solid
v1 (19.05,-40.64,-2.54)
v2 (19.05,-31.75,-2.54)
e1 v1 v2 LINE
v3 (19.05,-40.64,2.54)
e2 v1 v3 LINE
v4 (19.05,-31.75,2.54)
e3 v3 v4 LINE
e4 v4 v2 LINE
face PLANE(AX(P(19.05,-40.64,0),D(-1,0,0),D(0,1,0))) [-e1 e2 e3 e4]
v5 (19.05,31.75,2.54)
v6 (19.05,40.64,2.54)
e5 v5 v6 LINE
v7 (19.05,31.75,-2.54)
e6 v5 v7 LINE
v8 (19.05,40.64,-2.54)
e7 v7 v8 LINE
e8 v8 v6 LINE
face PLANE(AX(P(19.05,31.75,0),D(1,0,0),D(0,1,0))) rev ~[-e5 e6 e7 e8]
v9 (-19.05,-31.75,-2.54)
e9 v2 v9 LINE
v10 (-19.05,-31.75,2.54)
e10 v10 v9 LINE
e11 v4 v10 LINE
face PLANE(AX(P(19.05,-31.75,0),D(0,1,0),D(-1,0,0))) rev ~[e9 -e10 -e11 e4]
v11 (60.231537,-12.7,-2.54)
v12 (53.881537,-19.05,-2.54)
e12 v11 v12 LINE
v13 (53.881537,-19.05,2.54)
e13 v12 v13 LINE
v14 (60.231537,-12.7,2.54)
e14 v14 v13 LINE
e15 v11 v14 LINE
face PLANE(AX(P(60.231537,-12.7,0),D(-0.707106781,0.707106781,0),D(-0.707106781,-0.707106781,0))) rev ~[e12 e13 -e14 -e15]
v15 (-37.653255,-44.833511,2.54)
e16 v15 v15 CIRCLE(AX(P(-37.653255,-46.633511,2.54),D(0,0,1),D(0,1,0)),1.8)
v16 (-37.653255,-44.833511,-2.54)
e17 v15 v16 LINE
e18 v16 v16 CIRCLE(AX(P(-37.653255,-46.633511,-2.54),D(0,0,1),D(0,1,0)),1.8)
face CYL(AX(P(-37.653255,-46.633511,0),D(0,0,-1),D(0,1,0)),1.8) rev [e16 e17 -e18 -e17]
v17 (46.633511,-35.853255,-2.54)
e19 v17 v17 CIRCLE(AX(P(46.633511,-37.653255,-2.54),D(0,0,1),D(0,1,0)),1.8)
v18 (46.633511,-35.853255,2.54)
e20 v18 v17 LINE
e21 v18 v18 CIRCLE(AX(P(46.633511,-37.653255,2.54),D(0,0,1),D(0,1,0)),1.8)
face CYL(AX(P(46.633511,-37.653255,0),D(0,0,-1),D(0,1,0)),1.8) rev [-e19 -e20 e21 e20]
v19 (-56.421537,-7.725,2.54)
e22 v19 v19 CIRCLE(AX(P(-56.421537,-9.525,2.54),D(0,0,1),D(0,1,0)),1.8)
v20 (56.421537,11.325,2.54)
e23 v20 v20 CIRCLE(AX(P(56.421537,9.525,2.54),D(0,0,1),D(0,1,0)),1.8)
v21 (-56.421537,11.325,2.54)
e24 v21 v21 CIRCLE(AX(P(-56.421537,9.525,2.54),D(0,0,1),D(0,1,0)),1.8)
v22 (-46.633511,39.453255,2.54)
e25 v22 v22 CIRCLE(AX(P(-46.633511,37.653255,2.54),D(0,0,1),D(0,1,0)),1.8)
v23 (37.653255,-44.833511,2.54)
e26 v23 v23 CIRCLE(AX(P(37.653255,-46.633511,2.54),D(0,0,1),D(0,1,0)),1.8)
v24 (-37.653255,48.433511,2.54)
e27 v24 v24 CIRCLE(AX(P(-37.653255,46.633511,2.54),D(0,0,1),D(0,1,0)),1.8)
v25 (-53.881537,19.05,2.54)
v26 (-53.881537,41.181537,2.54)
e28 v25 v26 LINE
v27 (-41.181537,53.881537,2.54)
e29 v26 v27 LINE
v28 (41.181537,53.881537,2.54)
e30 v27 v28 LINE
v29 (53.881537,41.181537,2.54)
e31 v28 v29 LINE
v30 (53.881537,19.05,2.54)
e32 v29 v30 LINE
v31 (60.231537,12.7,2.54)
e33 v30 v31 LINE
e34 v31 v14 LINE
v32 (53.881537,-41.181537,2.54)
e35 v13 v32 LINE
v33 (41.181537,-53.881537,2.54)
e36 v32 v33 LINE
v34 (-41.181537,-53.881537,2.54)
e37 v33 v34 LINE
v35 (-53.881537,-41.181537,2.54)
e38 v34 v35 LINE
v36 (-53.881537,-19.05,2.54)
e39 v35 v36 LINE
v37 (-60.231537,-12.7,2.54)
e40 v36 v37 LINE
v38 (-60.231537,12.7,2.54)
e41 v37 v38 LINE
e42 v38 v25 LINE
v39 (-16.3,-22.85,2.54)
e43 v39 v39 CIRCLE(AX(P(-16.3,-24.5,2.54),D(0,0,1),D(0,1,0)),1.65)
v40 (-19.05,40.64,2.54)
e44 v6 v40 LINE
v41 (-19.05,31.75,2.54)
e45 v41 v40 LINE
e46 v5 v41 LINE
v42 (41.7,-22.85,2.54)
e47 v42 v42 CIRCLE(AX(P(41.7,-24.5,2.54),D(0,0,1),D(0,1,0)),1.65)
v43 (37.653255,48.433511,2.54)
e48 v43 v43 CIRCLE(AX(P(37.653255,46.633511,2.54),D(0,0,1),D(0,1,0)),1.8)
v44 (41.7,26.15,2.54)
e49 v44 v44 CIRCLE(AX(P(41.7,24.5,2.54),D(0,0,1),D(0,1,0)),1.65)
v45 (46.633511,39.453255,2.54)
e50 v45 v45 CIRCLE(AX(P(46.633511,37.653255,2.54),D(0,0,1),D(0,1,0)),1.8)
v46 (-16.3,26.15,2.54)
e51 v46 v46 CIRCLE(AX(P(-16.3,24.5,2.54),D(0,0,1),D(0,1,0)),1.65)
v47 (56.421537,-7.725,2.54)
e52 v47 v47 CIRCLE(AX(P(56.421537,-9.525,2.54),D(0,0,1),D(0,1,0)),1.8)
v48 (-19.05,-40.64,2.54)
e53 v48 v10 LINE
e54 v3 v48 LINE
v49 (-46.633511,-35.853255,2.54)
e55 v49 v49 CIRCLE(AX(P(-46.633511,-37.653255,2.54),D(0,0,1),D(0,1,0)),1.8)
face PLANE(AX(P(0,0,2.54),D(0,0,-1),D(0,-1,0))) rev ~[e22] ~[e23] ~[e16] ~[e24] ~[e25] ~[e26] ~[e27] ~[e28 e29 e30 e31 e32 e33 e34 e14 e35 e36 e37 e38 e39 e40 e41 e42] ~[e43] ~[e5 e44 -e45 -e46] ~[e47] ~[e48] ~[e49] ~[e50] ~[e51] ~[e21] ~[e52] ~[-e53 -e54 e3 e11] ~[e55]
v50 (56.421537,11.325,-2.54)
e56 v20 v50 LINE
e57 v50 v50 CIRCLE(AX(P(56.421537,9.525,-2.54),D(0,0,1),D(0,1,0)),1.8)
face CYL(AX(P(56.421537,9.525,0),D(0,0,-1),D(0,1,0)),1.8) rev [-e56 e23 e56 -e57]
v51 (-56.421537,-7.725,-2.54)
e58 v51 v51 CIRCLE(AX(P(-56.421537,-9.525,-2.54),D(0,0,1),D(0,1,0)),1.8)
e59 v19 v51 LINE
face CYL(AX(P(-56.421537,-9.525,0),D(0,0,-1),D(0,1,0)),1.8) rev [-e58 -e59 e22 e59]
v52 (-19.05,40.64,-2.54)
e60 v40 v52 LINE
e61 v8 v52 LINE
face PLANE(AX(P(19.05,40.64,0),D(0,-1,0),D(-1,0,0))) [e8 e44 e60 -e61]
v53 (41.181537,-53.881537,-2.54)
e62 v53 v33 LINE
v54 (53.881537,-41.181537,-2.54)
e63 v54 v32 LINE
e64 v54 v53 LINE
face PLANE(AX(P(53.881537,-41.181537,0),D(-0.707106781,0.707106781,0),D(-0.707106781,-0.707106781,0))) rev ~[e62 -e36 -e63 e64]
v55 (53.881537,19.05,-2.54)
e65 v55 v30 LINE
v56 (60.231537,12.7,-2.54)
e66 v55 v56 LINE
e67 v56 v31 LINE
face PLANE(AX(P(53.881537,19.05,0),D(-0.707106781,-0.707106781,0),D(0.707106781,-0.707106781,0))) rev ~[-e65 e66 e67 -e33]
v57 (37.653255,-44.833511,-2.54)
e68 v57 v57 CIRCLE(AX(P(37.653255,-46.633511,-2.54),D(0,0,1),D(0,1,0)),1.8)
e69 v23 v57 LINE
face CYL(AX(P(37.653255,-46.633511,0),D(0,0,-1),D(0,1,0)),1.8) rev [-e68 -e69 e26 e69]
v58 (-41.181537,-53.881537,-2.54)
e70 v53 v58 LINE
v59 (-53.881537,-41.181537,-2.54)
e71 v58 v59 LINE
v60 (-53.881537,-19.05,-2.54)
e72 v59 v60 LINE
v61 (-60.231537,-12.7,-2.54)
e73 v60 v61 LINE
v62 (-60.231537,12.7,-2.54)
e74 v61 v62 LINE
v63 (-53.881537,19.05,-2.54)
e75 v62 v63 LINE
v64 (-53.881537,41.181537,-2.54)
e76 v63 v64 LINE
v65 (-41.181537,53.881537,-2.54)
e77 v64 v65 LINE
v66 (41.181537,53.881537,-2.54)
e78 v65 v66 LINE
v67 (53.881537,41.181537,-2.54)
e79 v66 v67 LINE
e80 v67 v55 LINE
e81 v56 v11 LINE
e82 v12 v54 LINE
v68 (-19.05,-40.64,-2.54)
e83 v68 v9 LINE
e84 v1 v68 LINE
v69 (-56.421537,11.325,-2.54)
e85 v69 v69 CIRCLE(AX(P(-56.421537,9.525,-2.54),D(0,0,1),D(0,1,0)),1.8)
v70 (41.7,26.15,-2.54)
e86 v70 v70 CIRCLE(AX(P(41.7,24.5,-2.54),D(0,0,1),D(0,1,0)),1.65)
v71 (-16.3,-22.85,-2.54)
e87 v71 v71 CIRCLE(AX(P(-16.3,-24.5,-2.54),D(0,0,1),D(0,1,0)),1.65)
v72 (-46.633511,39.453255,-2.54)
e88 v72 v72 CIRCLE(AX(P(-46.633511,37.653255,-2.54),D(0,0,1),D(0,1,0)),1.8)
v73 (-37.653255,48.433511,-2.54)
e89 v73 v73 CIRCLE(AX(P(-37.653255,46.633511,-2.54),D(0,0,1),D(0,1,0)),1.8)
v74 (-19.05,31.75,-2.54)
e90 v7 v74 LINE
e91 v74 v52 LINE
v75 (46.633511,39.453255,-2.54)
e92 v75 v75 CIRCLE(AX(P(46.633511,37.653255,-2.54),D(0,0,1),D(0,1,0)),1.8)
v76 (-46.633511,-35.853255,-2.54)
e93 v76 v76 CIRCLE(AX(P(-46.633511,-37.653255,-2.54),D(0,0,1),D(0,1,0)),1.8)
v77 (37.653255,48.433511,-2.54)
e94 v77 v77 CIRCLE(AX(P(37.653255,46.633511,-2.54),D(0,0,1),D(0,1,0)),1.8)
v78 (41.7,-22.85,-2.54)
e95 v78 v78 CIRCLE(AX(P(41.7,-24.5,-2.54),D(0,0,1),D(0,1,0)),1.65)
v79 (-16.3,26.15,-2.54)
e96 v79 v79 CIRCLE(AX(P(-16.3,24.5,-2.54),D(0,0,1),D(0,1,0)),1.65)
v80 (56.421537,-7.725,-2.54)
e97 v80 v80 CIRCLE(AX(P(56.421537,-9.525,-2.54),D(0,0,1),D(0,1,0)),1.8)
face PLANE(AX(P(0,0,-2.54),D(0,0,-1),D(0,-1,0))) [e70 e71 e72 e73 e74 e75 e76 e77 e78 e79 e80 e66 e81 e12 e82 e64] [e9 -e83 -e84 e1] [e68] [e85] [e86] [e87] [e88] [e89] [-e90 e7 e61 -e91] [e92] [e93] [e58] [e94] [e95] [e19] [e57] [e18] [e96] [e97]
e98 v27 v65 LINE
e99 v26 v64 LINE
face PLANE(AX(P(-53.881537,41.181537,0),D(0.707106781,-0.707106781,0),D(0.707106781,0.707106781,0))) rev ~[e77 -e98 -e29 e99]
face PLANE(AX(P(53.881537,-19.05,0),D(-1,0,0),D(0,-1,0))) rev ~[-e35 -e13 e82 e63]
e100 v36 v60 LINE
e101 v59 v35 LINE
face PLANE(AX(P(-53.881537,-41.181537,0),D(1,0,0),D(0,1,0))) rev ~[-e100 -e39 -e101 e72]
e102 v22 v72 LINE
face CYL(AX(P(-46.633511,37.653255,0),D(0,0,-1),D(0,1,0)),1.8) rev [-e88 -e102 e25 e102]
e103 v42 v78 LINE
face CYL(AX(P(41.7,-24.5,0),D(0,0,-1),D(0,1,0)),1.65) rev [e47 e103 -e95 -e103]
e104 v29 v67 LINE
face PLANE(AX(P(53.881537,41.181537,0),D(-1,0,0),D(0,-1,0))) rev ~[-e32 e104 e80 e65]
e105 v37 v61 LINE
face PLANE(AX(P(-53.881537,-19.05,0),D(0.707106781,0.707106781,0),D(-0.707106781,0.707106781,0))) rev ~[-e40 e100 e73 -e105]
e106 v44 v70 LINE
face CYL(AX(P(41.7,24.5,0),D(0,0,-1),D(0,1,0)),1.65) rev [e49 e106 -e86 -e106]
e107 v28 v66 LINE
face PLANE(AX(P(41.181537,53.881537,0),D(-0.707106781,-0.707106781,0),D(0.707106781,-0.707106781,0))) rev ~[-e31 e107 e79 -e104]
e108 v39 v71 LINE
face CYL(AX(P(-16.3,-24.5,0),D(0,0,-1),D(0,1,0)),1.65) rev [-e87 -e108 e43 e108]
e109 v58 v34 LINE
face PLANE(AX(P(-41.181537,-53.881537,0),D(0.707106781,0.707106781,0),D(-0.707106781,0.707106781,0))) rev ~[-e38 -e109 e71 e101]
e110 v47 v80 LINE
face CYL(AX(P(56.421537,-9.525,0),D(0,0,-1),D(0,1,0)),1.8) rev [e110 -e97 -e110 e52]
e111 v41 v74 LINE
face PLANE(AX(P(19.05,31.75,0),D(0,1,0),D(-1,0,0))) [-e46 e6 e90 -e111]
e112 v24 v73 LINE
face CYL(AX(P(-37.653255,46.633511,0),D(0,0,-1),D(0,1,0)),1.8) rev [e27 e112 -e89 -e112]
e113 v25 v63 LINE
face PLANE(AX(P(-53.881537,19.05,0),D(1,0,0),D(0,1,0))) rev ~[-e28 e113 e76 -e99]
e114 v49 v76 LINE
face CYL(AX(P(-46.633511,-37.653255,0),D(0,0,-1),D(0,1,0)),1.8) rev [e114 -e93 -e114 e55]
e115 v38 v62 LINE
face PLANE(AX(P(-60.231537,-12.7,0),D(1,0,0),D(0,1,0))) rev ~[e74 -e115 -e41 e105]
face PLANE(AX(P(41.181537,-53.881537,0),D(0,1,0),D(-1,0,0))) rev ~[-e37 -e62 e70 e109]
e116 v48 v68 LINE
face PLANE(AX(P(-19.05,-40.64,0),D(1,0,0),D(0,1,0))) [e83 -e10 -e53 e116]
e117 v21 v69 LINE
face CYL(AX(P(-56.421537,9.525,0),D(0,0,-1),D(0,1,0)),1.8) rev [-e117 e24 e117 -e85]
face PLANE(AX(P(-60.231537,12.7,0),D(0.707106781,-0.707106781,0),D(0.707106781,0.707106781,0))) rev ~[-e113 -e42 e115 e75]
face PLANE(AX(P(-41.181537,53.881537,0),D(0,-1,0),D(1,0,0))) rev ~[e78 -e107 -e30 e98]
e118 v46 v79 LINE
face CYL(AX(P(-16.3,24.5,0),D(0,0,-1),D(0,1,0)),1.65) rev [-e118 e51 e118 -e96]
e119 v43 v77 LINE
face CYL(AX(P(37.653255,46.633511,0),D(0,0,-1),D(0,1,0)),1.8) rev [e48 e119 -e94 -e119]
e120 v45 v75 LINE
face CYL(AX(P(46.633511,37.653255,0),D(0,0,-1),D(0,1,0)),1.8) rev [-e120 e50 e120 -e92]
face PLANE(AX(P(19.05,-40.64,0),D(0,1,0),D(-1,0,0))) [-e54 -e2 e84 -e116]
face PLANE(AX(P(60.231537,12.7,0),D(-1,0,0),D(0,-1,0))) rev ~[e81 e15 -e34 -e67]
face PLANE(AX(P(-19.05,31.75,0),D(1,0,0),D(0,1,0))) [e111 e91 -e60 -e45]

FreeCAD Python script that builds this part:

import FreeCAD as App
import Part
import Sketcher

V = App.Vector
Q = App.Units.Quantity


def add_polygon(sketch, points):
    """Adds a closed chain of lines whose ends are joined by coincident constraints."""
    first, n = sketch.GeometryCount, len(points)
    for a, b in zip(points, points[1:] + points[:1]):
        sketch.addGeometry(Part.LineSegment(App.Vector(*a, 0), App.Vector(*b, 0)), False)
    for i in range(n):
        sketch.addConstraint(Sketcher.Constraint("Coincident", first + i, 2, first + (i + 1) % n, 1))

doc = App.newDocument("Part")
params = doc.addObject("Spreadsheet::Sheet", "Params")
for row, (alias, value) in enumerate([
    ("sketch1_height", "1 in"),
    ("sketch1_width", "1.5 in"),
    ("sketch1_height2", "0.35 in"),
    ("pad1_length", "0.2 in"),
], start=1):
    params.set(f"A{row}", alias)
    params.set(f"B{row}", "=" + value)
    params.setAlias(f"B{row}", alias)

body = doc.addObject("PartDesign::Body", "Body")

sketch1 = body.newObject("Sketcher::SketchObject", "Sketch")
sketch1.AttachmentSupport = (doc.getObject("XY_Plane"), [""])
sketch1.MapMode = "FlatFace"
add_polygon(sketch1, [(-53.9, -19.1), (-53.9, -41.2), (-41.2, -53.9), (41.2, -53.9), (53.9, -41.2), (53.9, -19.1), (60.2, -12.7), (60.2, 12.7), (53.9, 19.1), (53.9, 41.2), (41.2, 53.9), (-41.2, 53.9), (-53.9, 41.2), (-53.9, 19.1), (-60.2, 12.7), (-60.2, -12.7)])
sketch1.addGeometry(Part.Circle(V(46.6, 37.7, 0), V(0, 0, 1), 1.8), False)
sketch1.addGeometry(Part.Circle(V(37.7, 46.6, 0), V(0, 0, 1), 1.8), False)
sketch1.addGeometry(Part.Circle(V(41.7, 24.5, 0), V(0, 0, 1), 1.7), False)
sketch1.addGeometry(Part.Circle(V(56.4, 9.5, 0), V(0, 0, 1), 1.8), False)
sketch1.addGeometry(Part.Circle(V(56.4, -9.5, 0), V(0, 0, 1), 1.8), False)
sketch1.addGeometry(Part.Circle(V(46.6, -37.7, 0), V(0, 0, 1), 1.8), False)
sketch1.addGeometry(Part.Circle(V(41.7, -24.5, 0), V(0, 0, 1), 1.7), False)
sketch1.addGeometry(Part.Circle(V(37.7, -46.6, 0), V(0, 0, 1), 1.8), False)
add_polygon(sketch1, [(19.1, 31.8), (-19.1, 31.8), (-19.1, 40.6), (19.1, 40.6)])
sketch1.addGeometry(Part.Circle(V(-16.3, 24.5, 0), V(0, 0, 1), 1.7), False)
sketch1.addGeometry(Part.Circle(V(-37.7, 46.6, 0), V(0, 0, 1), 1.8), False)
sketch1.addGeometry(Part.Circle(V(-46.6, 37.7, 0), V(0, 0, 1), 1.8), False)
sketch1.addGeometry(Part.Circle(V(-56.4, 9.5, 0), V(0, 0, 1), 1.8), False)
add_polygon(sketch1, [(19.1, -40.6), (-19.1, -40.6), (-19.1, -31.8), (19.1, -31.8)])
sketch1.addGeometry(Part.Circle(V(-16.3, -24.5, 0), V(0, 0, 1), 1.7), False)
sketch1.addGeometry(Part.Circle(V(-56.4, -9.5, 0), V(0, 0, 1), 1.8), False)
sketch1.addGeometry(Part.Circle(V(-37.7, -46.6, 0), V(0, 0, 1), 1.8), False)
sketch1.addGeometry(Part.Circle(V(-46.6, -37.7, 0), V(0, 0, 1), 1.8), False)
sketch1.addConstraint([
    Sketcher.Constraint("Vertical", 0),
    Sketcher.Constraint("Horizontal", 2),
    Sketcher.Constraint("Vertical", 4),
    Sketcher.Constraint("Vertical", 6),
    Sketcher.Constraint("Vertical", 8),
    Sketcher.Constraint("Horizontal", 10),
    Sketcher.Constraint("Vertical", 12),
    Sketcher.Constraint("Vertical", 14),
    Sketcher.Constraint("Horizontal", 24),
    Sketcher.Constraint("Vertical", 25),
    Sketcher.Constraint("Horizontal", 26),
    Sketcher.Constraint("Vertical", 27),
    Sketcher.Constraint("Horizontal", 32),
    Sketcher.Constraint("Vertical", 33),
    Sketcher.Constraint("Horizontal", 34),
    Sketcher.Constraint("Vertical", 35),
    Sketcher.Constraint("Equal", 16, 17),
    Sketcher.Constraint("Equal", 17, 19),
    Sketcher.Constraint("Equal", 19, 20),
    Sketcher.Constraint("Equal", 20, 21),
    Sketcher.Constraint("Equal", 18, 22),
    Sketcher.Constraint("Equal", 21, 23),
    Sketcher.Constraint("Equal", 22, 28),
    Sketcher.Constraint("Equal", 23, 29),
    Sketcher.Constraint("Equal", 29, 30),
    Sketcher.Constraint("Equal", 30, 31),
    Sketcher.Constraint("Equal", 28, 36),
    Sketcher.Constraint("Equal", 31, 37),
    Sketcher.Constraint("Equal", 37, 38),
    Sketcher.Constraint("Equal", 38, 39),
    Sketcher.Constraint("Symmetric", 23, 3, 29, 3, -1, 1),
    Sketcher.Constraint("Symmetric", 21, 3, 30, 3, -1, 1),
    Sketcher.Constraint("Symmetric", 20, 3, 31, 3, -1, 1),
    Sketcher.Constraint("Symmetric", 19, 3, 37, 3, -1, 1),
    Sketcher.Constraint("Symmetric", 17, 3, 38, 3, -1, 1),
    Sketcher.Constraint("Symmetric", 16, 3, 39, 3, -1, 1),
    Sketcher.Constraint("Symmetric", 0, 2, 8, 2, -1, 1),
    Sketcher.Constraint("Symmetric", 1, 2, 9, 2, -1, 1),
    Sketcher.Constraint("Symmetric", 3, 2, 11, 2, -1, 1),
    Sketcher.Constraint("Symmetric", 5, 2, 13, 2, -1, 1),
    Sketcher.Constraint("Symmetric", 26, 2, 32, 2, -1, 1),
    Sketcher.Constraint("Symmetric", 24, 2, 34, 2, -1, 1),
    Sketcher.Constraint("Symmetric", 17, 3, 29, 3, -2),
    Sketcher.Constraint("Symmetric", 16, 3, 30, 3, -2),
    Sketcher.Constraint("Symmetric", 19, 3, 31, 3, -2),
    Sketcher.Constraint("Symmetric", 0, 2, 3, 2, -2),
    Sketcher.Constraint("Symmetric", 18, 3, 22, 3, -1),
    Sketcher.Constraint("Symmetric", 28, 3, 36, 3, -1),
    Sketcher.Constraint("Perpendicular", 1, 3),
    Sketcher.Constraint("Parallel", 3, 5),
    Sketcher.Constraint("Perpendicular", 5, 7),
    Sketcher.Constraint("Perpendicular", 9, 11),
    Sketcher.Constraint("Parallel", 11, 13),
    Sketcher.Constraint("Perpendicular", 13, 15),
    Sketcher.Constraint("Horizontal", 18, 3, 28, 3),
    Sketcher.Constraint("Horizontal", 7, 2, 12, 2),
    Sketcher.Constraint("Horizontal", 6, 2, 13, 2),
    Sketcher.Constraint("Horizontal", 5, 2, 14, 2),
    Sketcher.Constraint("Vertical", 25, 2, 32, 2),
    Sketcher.Constraint("DistanceY", 6, 1, 6, 2, Q("1 in")),
    Sketcher.Constraint("DistanceX", 24, 2, 24, 1, Q("1.5 in")),
    Sketcher.Constraint("DistanceY", 25, 1, 25, 2, Q("0.35 in")),
    Sketcher.Constraint("DistanceY", -1, 1, 25, 2, Q("1.6 in")),
    Sketcher.Constraint("DistanceX", 37, 3, 0, 2, Q("0.1 in")),
    Sketcher.Constraint("DistanceX", 0, 2, 1, 2, Q("0.5 in")),
    Sketcher.Constraint("Diameter", 16, 3.6),
    Sketcher.Constraint("Diameter", 18, 3.3),
    Sketcher.Constraint("DistanceY", 4, 2, -1, 1, Q("0.75 in")),
    Sketcher.Constraint("DistanceY", 20, 3, 19, 3, Q("0.75 in")),
    Sketcher.Constraint("DistanceX", -1, 1, 18, 3, 41.7),
    Sketcher.Constraint("DistanceY", -1, 1, 18, 3, 24.5),
    Sketcher.Constraint("DistanceX", 28, 3, -1, 1, 16.3),
    Sketcher.Constraint("DistanceX", 2, 1, 2, 2, 82.363073),
    Sketcher.Constraint("DistanceY", 0, 2, 0, 1, 22.131537),
    Sketcher.Constraint("DistanceX", -1, 1, 16, 3, 46.633511),
    Sketcher.Constraint("DistanceY", -1, 1, 17, 3, 46.633511),
    Sketcher.Constraint("DistanceX", 17, 3, 19, 3, 18.768282),
    Sketcher.Constraint("DistanceY", 21, 3, 16, 3, 75.30651),
])
sketch1.setExpression("Constraints[83]", "Params.sketch1_height")
sketch1.setExpression("Constraints[84]", "Params.sketch1_width")
sketch1.setExpression("Constraints[85]", "Params.sketch1_height2")
pad1 = body.newObject("PartDesign::Pad", "Pad")
pad1.Profile = sketch1
pad1.setExpression("Length", "Params.pad1_length")
pad1.Midplane = True

doc.recompute()
